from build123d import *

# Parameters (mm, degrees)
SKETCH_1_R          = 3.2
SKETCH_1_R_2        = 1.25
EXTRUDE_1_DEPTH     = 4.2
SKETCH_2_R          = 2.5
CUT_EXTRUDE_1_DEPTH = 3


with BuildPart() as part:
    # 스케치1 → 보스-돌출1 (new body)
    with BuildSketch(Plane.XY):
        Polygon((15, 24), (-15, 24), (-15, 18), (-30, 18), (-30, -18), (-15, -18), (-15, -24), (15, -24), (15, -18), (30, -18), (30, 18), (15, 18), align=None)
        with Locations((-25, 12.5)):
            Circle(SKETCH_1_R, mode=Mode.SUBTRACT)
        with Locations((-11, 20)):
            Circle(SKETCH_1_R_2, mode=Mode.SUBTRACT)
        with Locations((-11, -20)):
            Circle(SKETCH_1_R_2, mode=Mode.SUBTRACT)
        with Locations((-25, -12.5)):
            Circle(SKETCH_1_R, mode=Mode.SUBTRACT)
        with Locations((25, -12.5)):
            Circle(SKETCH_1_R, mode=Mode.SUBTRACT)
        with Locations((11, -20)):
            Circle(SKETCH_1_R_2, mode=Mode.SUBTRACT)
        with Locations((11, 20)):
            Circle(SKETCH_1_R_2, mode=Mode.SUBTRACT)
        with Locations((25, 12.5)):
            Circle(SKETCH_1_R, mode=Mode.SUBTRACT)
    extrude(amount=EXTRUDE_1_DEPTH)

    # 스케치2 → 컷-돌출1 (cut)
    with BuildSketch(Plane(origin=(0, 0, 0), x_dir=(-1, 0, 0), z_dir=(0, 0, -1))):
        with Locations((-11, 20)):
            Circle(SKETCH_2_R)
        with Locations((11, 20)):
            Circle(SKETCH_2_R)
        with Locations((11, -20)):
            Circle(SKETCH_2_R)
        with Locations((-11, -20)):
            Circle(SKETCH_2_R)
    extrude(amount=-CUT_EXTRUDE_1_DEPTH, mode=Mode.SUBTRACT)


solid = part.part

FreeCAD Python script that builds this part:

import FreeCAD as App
import Part
import Sketcher
Q = App.Units.Quantity

doc = App.newDocument("Part")
body = doc.addObject("PartDesign::Body", "Body")

# Sketch on XY plane
sketch1 = body.newObject("Sketcher::SketchObject", "Sketch")
sketch1.AttachmentSupport = (doc.getObject("XY_Plane"), [""])
sketch1.MapMode = "FlatFace"
sketch1.addGeometry(Part.LineSegment(App.Vector(15, 24, 0), App.Vector(-15, 24, 0)), False)
sketch1.addGeometry(Part.LineSegment(App.Vector(-15, 24, 0), App.Vector(-15, 18, 0)), False)
sketch1.addGeometry(Part.LineSegment(App.Vector(-15, 18, 0), App.Vector(-30, 18, 0)), False)
sketch1.addGeometry(Part.LineSegment(App.Vector(-30, 18, 0), App.Vector(-30, -18, 0)), False)
sketch1.addGeometry(Part.LineSegment(App.Vector(-30, -18, 0), App.Vector(-15, -18, 0)), False)
sketch1.addGeometry(Part.LineSegment(App.Vector(-15, -18, 0), App.Vector(-15, -24, 0)), False)
sketch1.addGeometry(Part.LineSegment(App.Vector(-15, -24, 0), App.Vector(15, -24, 0)), False)
sketch1.addGeometry(Part.LineSegment(App.Vector(15, -24, 0), App.Vector(15, -18, 0)), False)
sketch1.addGeometry(Part.LineSegment(App.Vector(15, -18, 0), App.Vector(30, -18, 0)), False)
sketch1.addGeometry(Part.LineSegment(App.Vector(30, -18, 0), App.Vector(30, 18, 0)), False)
sketch1.addGeometry(Part.LineSegment(App.Vector(30, 18, 0), App.Vector(15, 18, 0)), False)
sketch1.addGeometry(Part.LineSegment(App.Vector(15, 18, 0), App.Vector(15, 24, 0)), False)
sketch1.addGeometry(Part.Circle(App.Vector(-25, -12.5, 0), App.Vector(0, 0, 1), 3.2), False)
sketch1.addGeometry(Part.Circle(App.Vector(-11, -20, 0), App.Vector(0, 0, 1), 1.25), False)
sketch1.addGeometry(Part.Circle(App.Vector(11, -20, 0), App.Vector(0, 0, 1), 1.25), False)
sketch1.addGeometry(Part.Circle(App.Vector(25, -12.5, 0), App.Vector(0, 0, 1), 3.2), False)
sketch1.addGeometry(Part.Circle(App.Vector(-25, 12.5, 0), App.Vector(0, 0, 1), 3.2), False)
sketch1.addGeometry(Part.Circle(App.Vector(-11, 20, 0), App.Vector(0, 0, 1), 1.25), False)
sketch1.addGeometry(Part.Circle(App.Vector(11, 20, 0), App.Vector(0, 0, 1), 1.25), False)
sketch1.addGeometry(Part.Circle(App.Vector(25, 12.5, 0), App.Vector(0, 0, 1), 3.2), False)
sketch1.addConstraint(Sketcher.Constraint("Coincident", 0, 2, 1, 1))
sketch1.addConstraint(Sketcher.Constraint("Coincident", 1, 2, 2, 1))
sketch1.addConstraint(Sketcher.Constraint("Coincident", 2, 2, 3, 1))
sketch1.addConstraint(Sketcher.Constraint("Coincident", 3, 2, 4, 1))
sketch1.addConstraint(Sketcher.Constraint("Coincident", 4, 2, 5, 1))
sketch1.addConstraint(Sketcher.Constraint("Coincident", 5, 2, 6, 1))
sketch1.addConstraint(Sketcher.Constraint("Coincident", 6, 2, 7, 1))
sketch1.addConstraint(Sketcher.Constraint("Coincident", 7, 2, 8, 1))
sketch1.addConstraint(Sketcher.Constraint("Coincident", 8, 2, 9, 1))
sketch1.addConstraint(Sketcher.Constraint("Coincident", 9, 2, 10, 1))
sketch1.addConstraint(Sketcher.Constraint("Coincident", 10, 2, 11, 1))
sketch1.addConstraint(Sketcher.Constraint("Coincident", 11, 2, 0, 1))
sketch1.addConstraint(Sketcher.Constraint("Horizontal", 0))
sketch1.addConstraint(Sketcher.Constraint("Vertical", 1))
sketch1.addConstraint(Sketcher.Constraint("Horizontal", 2))
sketch1.addConstraint(Sketcher.Constraint("Vertical", 3))
sketch1.addConstraint(Sketcher.Constraint("Horizontal", 4))
sketch1.addConstraint(Sketcher.Constraint("Vertical", 5))
sketch1.addConstraint(Sketcher.Constraint("Horizontal", 6))
sketch1.addConstraint(Sketcher.Constraint("Vertical", 7))
sketch1.addConstraint(Sketcher.Constraint("Horizontal", 8))
sketch1.addConstraint(Sketcher.Constraint("Vertical", 9))
sketch1.addConstraint(Sketcher.Constraint("Horizontal", 10))
sketch1.addConstraint(Sketcher.Constraint("Vertical", 11))
sketch1.addConstraint(Sketcher.Constraint("Equal", 13, 14))
sketch1.addConstraint(Sketcher.Constraint("Equal", 12, 15))
sketch1.addConstraint(Sketcher.Constraint("Equal", 15, 16))
sketch1.addConstraint(Sketcher.Constraint("Equal", 14, 17))
sketch1.addConstraint(Sketcher.Constraint("Equal", 17, 18))
sketch1.addConstraint(Sketcher.Constraint("Equal", 16, 19))
sketch1.addConstraint(Sketcher.Constraint("Symmetric", 15, 3, 16, 3, -1, 1))
sketch1.addConstraint(Sketcher.Constraint("Symmetric", 14, 3, 17, 3, -1, 1))
sketch1.addConstraint(Sketcher.Constraint("Symmetric", 13, 3, 18, 3, -1, 1))
sketch1.addConstraint(Sketcher.Constraint("Symmetric", 12, 3, 19, 3, -1, 1))
sketch1.addConstraint(Sketcher.Constraint("Symmetric", 0, 2, 6, 2, -1, 1))
sketch1.addConstraint(Sketcher.Constraint("Symmetric", 2, 2, 8, 2, -1, 1))
sketch1.addConstraint(Sketcher.Constraint("Symmetric", 4, 2, 10, 2, -1, 1))
sketch1.addConstraint(Sketcher.Constraint("Symmetric", 13, 3, 14, 3, -2))
sketch1.addConstraint(Sketcher.Constraint("Symmetric", 12, 3, 15, 3, -2))
sketch1.addConstraint(Sketcher.Constraint("Symmetric", 4, 2, 7, 2, -2))
sketch1.addConstraint(Sketcher.Constraint("Diameter", 12, Q("6.4 mm")))
sketch1.addConstraint(Sketcher.Constraint("Diameter", 13, Q("2.5 mm")))
sketch1.addConstraint(Sketcher.Constraint("DistanceX", 0, 2, 0, 1, Q("30 mm")))
sketch1.addConstraint(Sketcher.Constraint("DistanceX", 2, 2, 2, 1, Q("15 mm")))
sketch1.addConstraint(Sketcher.Constraint("DistanceY", 1, 2, 1, 1, Q("6 mm")))
sketch1.addConstraint(Sketcher.Constraint("DistanceY", 3, 2, 3, 1, Q("36 mm")))
sketch1.addConstraint(Sketcher.Constraint("DistanceX", 12, 3, -1, 1, Q("25 mm")))
sketch1.addConstraint(Sketcher.Constraint("DistanceX", 13, 3, -1, 1, Q("11 mm")))
sketch1.addConstraint(Sketcher.Constraint("DistanceY", 13, 3, -1, 1, Q("20 mm")))
sketch1.addConstraint(Sketcher.Constraint("DistanceY", 12, 3, 16, 3, Q("25 mm")))
pad1 = body.newObject("PartDesign::Pad", "Pad")
pad1.Profile = sketch1
pad1.Length = 4.2

# Sketch on XY plane
sketch2 = body.newObject("Sketcher::SketchObject", "Sketch001")
sketch2.AttachmentSupport = (doc.getObject("XY_Plane"), [""])
sketch2.MapMode = "FlatFace"
sketch2.addGeometry(Part.Circle(App.Vector(11, 20, 0), App.Vector(0, 0, 1), 2.5), False)
sketch2.addGeometry(Part.Circle(App.Vector(-11, 20, 0), App.Vector(0, 0, 1), 2.5), False)
sketch2.addGeometry(Part.Circle(App.Vector(-11, -20, 0), App.Vector(0, 0, 1), 2.5), False)
sketch2.addGeometry(Part.Circle(App.Vector(11, -20, 0), App.Vector(0, 0, 1), 2.5), False)
sketch2.addConstraint(Sketcher.Constraint("Equal", 0, 1))
sketch2.addConstraint(Sketcher.Constraint("Equal", 1, 2))
sketch2.addConstraint(Sketcher.Constraint("Equal", 2, 3))
sketch2.addConstraint(Sketcher.Constraint("Symmetric", 0, 3, 2, 3, -1, 1))
sketch2.addConstraint(Sketcher.Constraint("Symmetric", 1, 3, 3, 3, -1, 1))
sketch2.addConstraint(Sketcher.Constraint("Symmetric", 0, 3, 1, 3, -2))
sketch2.addConstraint(Sketcher.Constraint("Diameter", 0, Q("5 mm")))
sketch2.addConstraint(Sketcher.Constraint("DistanceX", -1, 1, 0, 3, Q("11 mm")))
sketch2.addConstraint(Sketcher.Constraint("DistanceY", -1, 1, 0, 3, Q("20 mm")))
pocket1 = body.newObject("PartDesign::Pocket", "Pocket")
pocket1.Profile = sketch2
pocket1.Length = 3
pocket1.Reversed = True

doc.recompute()
